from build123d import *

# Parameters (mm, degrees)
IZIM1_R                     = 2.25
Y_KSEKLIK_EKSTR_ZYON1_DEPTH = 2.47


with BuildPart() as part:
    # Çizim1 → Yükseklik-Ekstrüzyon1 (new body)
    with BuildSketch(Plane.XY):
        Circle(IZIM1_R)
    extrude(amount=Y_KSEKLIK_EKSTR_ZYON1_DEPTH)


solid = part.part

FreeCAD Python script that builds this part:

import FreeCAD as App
import Part
import Sketcher
from FreeCAD import Vector
Q = App.Units.Quantity

doc = App.newDocument("Part")
body = doc.addObject("PartDesign::Body", "Body")

sketch1 = doc.addObject("Sketcher::SketchObject", "Sketch")
body.addObject(sketch1)
sketch1.AttachmentSupport = (doc.XY_Plane, [""])
sketch1.MapMode = "FlatFace"
sketch1.addGeometry(Part.Circle(Vector(0, 0, 0), Vector(0, 0, 1), 2.2), False)
sketch1.addConstraint([
    Sketcher.Constraint("Coincident", 0, 3, -1, 1),
    Sketcher.Constraint("Diameter", 0, Q("4.5 mm")),
])
pad1 = doc.addObject("PartDesign::Pad", "Pad")
body.addObject(pad1)
pad1.Profile = sketch1
pad1.Length = 2.47

doc.recompute()
